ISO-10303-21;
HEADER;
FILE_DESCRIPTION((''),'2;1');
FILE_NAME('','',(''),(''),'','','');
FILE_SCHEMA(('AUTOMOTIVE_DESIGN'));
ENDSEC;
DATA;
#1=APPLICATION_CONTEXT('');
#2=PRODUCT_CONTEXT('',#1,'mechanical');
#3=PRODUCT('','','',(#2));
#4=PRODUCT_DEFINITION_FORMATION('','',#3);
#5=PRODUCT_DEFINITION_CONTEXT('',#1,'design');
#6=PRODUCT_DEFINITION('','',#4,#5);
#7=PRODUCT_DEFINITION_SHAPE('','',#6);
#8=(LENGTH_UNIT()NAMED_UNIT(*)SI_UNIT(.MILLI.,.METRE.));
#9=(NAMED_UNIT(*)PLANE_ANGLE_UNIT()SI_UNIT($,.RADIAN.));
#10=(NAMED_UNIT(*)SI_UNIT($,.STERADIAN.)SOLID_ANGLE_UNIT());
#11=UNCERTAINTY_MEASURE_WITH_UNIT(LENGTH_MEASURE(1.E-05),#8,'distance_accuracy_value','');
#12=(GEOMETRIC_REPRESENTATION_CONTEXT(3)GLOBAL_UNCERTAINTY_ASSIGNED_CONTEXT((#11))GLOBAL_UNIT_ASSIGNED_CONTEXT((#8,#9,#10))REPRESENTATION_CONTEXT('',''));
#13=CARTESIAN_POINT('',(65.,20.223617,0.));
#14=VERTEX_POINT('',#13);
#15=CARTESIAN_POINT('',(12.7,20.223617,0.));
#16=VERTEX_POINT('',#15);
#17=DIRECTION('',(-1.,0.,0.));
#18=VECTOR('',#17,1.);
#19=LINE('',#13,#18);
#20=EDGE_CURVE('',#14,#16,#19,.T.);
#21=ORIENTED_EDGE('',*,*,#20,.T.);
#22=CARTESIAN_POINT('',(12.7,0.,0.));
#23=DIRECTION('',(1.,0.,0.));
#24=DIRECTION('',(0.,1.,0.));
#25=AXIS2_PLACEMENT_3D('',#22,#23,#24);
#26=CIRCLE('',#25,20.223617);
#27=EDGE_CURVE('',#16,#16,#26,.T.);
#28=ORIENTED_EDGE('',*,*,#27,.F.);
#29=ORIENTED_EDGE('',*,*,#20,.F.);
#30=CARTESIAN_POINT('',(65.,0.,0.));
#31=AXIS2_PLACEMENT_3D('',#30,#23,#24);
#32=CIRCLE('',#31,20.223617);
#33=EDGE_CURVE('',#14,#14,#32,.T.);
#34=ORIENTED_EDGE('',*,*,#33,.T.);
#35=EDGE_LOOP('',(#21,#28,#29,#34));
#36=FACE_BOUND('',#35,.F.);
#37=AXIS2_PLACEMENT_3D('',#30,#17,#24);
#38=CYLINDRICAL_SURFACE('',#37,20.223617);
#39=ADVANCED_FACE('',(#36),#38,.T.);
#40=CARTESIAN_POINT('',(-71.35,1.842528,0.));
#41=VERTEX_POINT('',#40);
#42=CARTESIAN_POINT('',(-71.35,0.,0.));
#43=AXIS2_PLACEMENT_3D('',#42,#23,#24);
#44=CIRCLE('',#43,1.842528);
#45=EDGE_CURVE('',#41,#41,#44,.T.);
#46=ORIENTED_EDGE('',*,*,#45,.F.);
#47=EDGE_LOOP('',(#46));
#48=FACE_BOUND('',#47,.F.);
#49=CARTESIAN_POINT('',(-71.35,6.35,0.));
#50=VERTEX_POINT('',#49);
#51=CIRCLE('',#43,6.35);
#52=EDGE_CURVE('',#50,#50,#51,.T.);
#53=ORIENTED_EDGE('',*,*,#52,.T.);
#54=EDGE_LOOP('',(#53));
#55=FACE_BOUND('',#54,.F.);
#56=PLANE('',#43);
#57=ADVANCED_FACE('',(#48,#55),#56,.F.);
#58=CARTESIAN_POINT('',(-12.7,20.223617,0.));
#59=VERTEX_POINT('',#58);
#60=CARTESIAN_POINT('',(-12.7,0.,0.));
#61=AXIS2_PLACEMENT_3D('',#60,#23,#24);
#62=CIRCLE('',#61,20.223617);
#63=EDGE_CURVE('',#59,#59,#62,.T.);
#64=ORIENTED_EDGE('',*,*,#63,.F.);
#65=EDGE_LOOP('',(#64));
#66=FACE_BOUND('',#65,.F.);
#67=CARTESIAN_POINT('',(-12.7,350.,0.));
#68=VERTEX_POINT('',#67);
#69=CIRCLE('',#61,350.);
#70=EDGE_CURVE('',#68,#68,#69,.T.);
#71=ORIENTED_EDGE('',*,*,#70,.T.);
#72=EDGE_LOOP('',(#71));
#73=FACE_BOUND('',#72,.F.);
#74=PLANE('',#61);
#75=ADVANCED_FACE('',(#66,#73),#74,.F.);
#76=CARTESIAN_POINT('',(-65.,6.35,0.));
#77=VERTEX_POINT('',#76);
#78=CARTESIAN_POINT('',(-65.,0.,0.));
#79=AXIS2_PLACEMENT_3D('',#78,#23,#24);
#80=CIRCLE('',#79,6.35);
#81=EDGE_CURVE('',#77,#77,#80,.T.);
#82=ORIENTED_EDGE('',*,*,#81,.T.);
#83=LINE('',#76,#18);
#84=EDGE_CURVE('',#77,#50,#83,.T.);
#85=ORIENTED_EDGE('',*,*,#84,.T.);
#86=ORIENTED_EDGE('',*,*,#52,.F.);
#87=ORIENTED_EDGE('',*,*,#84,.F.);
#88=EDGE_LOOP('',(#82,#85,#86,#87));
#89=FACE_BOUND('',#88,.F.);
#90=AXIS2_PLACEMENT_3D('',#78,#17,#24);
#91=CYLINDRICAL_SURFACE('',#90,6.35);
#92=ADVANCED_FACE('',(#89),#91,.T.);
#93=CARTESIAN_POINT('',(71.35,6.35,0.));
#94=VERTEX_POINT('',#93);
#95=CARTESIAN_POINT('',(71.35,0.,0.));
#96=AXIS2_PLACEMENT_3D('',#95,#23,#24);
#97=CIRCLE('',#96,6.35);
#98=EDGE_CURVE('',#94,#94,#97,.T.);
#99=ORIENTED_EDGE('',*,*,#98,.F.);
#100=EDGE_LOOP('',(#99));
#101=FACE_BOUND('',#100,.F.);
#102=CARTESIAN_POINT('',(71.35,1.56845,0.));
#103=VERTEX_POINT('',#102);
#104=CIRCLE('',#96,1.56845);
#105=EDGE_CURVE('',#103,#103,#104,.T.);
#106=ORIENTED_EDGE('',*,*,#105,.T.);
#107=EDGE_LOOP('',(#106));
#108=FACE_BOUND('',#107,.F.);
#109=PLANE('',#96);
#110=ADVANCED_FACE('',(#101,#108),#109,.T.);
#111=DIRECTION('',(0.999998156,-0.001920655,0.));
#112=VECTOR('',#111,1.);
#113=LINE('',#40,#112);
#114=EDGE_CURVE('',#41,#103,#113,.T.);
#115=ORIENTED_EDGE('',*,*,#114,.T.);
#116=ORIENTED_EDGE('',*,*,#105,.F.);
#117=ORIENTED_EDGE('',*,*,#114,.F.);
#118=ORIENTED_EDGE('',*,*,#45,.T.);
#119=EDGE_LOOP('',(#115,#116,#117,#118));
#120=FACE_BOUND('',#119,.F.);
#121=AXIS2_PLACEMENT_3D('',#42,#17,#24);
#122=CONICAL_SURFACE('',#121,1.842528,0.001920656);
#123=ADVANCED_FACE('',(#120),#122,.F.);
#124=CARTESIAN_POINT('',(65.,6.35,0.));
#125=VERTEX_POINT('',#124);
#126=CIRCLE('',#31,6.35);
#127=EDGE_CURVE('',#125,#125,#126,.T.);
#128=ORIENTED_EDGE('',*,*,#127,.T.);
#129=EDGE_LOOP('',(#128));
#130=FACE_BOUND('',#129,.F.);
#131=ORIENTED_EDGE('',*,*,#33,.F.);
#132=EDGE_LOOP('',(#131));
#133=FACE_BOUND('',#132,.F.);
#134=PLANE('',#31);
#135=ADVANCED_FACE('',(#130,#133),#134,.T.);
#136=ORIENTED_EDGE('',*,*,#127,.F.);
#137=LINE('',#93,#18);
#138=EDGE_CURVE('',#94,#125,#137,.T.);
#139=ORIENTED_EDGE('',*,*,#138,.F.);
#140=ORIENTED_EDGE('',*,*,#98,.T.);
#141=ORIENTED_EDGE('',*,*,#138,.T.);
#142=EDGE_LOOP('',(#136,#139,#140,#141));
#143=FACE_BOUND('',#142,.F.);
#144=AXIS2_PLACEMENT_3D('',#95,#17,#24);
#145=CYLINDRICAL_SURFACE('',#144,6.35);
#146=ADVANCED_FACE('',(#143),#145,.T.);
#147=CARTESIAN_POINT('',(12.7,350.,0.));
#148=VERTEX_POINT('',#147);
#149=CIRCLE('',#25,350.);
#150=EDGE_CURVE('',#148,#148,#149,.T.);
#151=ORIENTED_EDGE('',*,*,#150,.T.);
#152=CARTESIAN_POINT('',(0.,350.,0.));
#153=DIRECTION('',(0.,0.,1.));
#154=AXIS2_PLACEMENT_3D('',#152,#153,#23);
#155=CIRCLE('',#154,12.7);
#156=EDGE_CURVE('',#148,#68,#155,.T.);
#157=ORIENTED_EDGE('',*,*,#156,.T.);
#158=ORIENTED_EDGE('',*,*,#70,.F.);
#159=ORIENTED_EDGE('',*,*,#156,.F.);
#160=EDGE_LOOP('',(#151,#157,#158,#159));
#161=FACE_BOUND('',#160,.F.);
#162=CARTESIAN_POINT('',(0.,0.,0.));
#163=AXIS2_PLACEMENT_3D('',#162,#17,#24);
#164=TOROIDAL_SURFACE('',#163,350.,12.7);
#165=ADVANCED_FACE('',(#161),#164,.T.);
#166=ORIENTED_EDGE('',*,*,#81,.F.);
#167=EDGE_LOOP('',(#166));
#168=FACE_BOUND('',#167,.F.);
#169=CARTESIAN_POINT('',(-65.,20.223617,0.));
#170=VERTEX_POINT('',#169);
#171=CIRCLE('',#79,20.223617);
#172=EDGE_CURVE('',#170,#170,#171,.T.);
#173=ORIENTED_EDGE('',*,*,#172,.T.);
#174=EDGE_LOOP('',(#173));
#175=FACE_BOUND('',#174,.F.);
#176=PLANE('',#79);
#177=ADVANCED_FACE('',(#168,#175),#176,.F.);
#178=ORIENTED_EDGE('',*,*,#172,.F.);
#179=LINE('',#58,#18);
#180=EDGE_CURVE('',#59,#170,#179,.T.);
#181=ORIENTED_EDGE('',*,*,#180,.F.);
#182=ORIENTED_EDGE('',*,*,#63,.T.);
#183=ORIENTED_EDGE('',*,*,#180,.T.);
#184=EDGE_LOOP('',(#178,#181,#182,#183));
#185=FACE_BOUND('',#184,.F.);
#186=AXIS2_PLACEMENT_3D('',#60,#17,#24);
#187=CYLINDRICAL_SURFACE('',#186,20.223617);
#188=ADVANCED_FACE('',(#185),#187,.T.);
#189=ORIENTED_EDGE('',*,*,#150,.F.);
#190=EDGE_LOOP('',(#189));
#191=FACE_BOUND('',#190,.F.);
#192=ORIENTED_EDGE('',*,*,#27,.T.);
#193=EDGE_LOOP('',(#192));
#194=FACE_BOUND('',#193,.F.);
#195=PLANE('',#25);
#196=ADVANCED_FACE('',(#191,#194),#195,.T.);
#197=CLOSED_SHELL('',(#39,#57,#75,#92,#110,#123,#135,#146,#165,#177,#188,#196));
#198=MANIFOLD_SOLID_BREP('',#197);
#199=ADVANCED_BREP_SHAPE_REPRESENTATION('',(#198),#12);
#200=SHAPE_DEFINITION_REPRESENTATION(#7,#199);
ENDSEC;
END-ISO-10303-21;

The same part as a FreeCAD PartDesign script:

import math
import FreeCAD as App
import Part
import Sketcher
Q = App.Units.Quantity

doc = App.newDocument("Part")
params = doc.addObject("Spreadsheet::Sheet", "Params")
for row, (alias, value) in enumerate([
    ("sketch1_radius", "0.5 in"),
    ("sketch1_width", "0.25 in"),
    ("revolution_angle", "360 deg"),
], start=1):
    params.set(f"A{row}", alias)
    params.set(f"B{row}", "=" + value)
    params.setAlias(f"B{row}", alias)

body = doc.addObject("PartDesign::Body", "Body")

sketch1 = body.newObject("Sketcher::SketchObject", "Sketch")
sketch1.AttachmentSupport = (doc.getObject("XY_Plane"), [""])
sketch1.MapMode = "FlatFace"
sketch1.addGeometry([
    Part.LineSegment(App.Vector(-12.7, 20.2, 0), App.Vector(-65, 20.2, 0)),
    Part.LineSegment(App.Vector(-65, 20.2, 0), App.Vector(-65, 6.3, 0)),
    Part.LineSegment(App.Vector(-65, 6.3, 0), App.Vector(-71.3, 6.3, 0)),
    Part.LineSegment(App.Vector(-71.3, 6.3, 0), App.Vector(-71.3, 1.8, 0)),
    Part.LineSegment(App.Vector(-71.3, 1.8, 0), App.Vector(71.3, 1.6, 0)),
    Part.LineSegment(App.Vector(71.3, 1.6, 0), App.Vector(71.3, 6.3, 0)),
    Part.LineSegment(App.Vector(71.3, 6.3, 0), App.Vector(65, 6.3, 0)),
    Part.LineSegment(App.Vector(65, 6.3, 0), App.Vector(65, 20.2, 0)),
    Part.LineSegment(App.Vector(65, 20.2, 0), App.Vector(12.7, 20.2, 0)),
    Part.LineSegment(App.Vector(12.7, 20.2, 0), App.Vector(12.7, 350, 0)),
    Part.ArcOfCircle(Part.Circle(App.Vector(0, 350, 0), App.Vector(0, 0, 1), 12.7), math.radians(0), math.radians(180)),
    Part.LineSegment(App.Vector(-12.7, 350, 0), App.Vector(-12.7, 20.2, 0)),
], False)
sketch1.addConstraint([
    Sketcher.Constraint("Coincident", 0, 2, 1, 1),
    Sketcher.Constraint("Coincident", 1, 2, 2, 1),
    Sketcher.Constraint("Coincident", 2, 2, 3, 1),
    Sketcher.Constraint("Coincident", 3, 2, 4, 1),
    Sketcher.Constraint("Coincident", 4, 2, 5, 1),
    Sketcher.Constraint("Coincident", 5, 2, 6, 1),
    Sketcher.Constraint("Coincident", 6, 2, 7, 1),
    Sketcher.Constraint("Coincident", 7, 2, 8, 1),
    Sketcher.Constraint("Coincident", 8, 2, 9, 1),
    Sketcher.Constraint("Tangent", 9, 2, 10, 1),
    Sketcher.Constraint("Tangent", 10, 2, 11, 1),
    Sketcher.Constraint("Coincident", 11, 2, 0, 1),
    Sketcher.Constraint("Horizontal", 0),
    Sketcher.Constraint("Vertical", 1),
    Sketcher.Constraint("Horizontal", 2),
    Sketcher.Constraint("Vertical", 3),
    Sketcher.Constraint("Vertical", 5),
    Sketcher.Constraint("Horizontal", 6),
    Sketcher.Constraint("Vertical", 7),
    Sketcher.Constraint("Horizontal", 8),
    Sketcher.Constraint("Vertical", 9),
    Sketcher.Constraint("Vertical", 11),
    Sketcher.Constraint("Symmetric", 2, 2, 5, 2, -2),
    Sketcher.Constraint("Symmetric", 0, 2, 7, 2, -2),
    Sketcher.Constraint("PointOnObject", 10, 3, -2),
    Sketcher.Constraint("Radius", 10, Q("0.5 in")),
    Sketcher.Constraint("DistanceX", 2, 2, 2, 1, Q("0.25 in")),
    Sketcher.Constraint("DistanceY", -1, 1, 1, 2, Q("0.25 in")),
    Sketcher.Constraint("DistanceX", 0, 2, 0, 1, 52.3),
    Sketcher.Constraint("DistanceY", 5, 1, 5, 2, 4.78155),
    Sketcher.Constraint("DistanceY", -1, 1, 10, 3, 350.0),
    Sketcher.Constraint("DistanceY", 1, 2, 1, 1, 13.873617),
    Sketcher.Constraint("DistanceY", 3, 2, 3, 1, 4.507472),
])
sketch1.setExpression("Constraints[25]", "Params.sketch1_radius")
sketch1.setExpression("Constraints[26]", "Params.sketch1_width")
revolution = body.newObject("PartDesign::Revolution", "Revolution")
revolution.Profile = sketch1
revolution.ReferenceAxis = (sketch1, ["H_Axis"])
revolution.setExpression("Angle", "Params.revolution_angle")

doc.recompute()
